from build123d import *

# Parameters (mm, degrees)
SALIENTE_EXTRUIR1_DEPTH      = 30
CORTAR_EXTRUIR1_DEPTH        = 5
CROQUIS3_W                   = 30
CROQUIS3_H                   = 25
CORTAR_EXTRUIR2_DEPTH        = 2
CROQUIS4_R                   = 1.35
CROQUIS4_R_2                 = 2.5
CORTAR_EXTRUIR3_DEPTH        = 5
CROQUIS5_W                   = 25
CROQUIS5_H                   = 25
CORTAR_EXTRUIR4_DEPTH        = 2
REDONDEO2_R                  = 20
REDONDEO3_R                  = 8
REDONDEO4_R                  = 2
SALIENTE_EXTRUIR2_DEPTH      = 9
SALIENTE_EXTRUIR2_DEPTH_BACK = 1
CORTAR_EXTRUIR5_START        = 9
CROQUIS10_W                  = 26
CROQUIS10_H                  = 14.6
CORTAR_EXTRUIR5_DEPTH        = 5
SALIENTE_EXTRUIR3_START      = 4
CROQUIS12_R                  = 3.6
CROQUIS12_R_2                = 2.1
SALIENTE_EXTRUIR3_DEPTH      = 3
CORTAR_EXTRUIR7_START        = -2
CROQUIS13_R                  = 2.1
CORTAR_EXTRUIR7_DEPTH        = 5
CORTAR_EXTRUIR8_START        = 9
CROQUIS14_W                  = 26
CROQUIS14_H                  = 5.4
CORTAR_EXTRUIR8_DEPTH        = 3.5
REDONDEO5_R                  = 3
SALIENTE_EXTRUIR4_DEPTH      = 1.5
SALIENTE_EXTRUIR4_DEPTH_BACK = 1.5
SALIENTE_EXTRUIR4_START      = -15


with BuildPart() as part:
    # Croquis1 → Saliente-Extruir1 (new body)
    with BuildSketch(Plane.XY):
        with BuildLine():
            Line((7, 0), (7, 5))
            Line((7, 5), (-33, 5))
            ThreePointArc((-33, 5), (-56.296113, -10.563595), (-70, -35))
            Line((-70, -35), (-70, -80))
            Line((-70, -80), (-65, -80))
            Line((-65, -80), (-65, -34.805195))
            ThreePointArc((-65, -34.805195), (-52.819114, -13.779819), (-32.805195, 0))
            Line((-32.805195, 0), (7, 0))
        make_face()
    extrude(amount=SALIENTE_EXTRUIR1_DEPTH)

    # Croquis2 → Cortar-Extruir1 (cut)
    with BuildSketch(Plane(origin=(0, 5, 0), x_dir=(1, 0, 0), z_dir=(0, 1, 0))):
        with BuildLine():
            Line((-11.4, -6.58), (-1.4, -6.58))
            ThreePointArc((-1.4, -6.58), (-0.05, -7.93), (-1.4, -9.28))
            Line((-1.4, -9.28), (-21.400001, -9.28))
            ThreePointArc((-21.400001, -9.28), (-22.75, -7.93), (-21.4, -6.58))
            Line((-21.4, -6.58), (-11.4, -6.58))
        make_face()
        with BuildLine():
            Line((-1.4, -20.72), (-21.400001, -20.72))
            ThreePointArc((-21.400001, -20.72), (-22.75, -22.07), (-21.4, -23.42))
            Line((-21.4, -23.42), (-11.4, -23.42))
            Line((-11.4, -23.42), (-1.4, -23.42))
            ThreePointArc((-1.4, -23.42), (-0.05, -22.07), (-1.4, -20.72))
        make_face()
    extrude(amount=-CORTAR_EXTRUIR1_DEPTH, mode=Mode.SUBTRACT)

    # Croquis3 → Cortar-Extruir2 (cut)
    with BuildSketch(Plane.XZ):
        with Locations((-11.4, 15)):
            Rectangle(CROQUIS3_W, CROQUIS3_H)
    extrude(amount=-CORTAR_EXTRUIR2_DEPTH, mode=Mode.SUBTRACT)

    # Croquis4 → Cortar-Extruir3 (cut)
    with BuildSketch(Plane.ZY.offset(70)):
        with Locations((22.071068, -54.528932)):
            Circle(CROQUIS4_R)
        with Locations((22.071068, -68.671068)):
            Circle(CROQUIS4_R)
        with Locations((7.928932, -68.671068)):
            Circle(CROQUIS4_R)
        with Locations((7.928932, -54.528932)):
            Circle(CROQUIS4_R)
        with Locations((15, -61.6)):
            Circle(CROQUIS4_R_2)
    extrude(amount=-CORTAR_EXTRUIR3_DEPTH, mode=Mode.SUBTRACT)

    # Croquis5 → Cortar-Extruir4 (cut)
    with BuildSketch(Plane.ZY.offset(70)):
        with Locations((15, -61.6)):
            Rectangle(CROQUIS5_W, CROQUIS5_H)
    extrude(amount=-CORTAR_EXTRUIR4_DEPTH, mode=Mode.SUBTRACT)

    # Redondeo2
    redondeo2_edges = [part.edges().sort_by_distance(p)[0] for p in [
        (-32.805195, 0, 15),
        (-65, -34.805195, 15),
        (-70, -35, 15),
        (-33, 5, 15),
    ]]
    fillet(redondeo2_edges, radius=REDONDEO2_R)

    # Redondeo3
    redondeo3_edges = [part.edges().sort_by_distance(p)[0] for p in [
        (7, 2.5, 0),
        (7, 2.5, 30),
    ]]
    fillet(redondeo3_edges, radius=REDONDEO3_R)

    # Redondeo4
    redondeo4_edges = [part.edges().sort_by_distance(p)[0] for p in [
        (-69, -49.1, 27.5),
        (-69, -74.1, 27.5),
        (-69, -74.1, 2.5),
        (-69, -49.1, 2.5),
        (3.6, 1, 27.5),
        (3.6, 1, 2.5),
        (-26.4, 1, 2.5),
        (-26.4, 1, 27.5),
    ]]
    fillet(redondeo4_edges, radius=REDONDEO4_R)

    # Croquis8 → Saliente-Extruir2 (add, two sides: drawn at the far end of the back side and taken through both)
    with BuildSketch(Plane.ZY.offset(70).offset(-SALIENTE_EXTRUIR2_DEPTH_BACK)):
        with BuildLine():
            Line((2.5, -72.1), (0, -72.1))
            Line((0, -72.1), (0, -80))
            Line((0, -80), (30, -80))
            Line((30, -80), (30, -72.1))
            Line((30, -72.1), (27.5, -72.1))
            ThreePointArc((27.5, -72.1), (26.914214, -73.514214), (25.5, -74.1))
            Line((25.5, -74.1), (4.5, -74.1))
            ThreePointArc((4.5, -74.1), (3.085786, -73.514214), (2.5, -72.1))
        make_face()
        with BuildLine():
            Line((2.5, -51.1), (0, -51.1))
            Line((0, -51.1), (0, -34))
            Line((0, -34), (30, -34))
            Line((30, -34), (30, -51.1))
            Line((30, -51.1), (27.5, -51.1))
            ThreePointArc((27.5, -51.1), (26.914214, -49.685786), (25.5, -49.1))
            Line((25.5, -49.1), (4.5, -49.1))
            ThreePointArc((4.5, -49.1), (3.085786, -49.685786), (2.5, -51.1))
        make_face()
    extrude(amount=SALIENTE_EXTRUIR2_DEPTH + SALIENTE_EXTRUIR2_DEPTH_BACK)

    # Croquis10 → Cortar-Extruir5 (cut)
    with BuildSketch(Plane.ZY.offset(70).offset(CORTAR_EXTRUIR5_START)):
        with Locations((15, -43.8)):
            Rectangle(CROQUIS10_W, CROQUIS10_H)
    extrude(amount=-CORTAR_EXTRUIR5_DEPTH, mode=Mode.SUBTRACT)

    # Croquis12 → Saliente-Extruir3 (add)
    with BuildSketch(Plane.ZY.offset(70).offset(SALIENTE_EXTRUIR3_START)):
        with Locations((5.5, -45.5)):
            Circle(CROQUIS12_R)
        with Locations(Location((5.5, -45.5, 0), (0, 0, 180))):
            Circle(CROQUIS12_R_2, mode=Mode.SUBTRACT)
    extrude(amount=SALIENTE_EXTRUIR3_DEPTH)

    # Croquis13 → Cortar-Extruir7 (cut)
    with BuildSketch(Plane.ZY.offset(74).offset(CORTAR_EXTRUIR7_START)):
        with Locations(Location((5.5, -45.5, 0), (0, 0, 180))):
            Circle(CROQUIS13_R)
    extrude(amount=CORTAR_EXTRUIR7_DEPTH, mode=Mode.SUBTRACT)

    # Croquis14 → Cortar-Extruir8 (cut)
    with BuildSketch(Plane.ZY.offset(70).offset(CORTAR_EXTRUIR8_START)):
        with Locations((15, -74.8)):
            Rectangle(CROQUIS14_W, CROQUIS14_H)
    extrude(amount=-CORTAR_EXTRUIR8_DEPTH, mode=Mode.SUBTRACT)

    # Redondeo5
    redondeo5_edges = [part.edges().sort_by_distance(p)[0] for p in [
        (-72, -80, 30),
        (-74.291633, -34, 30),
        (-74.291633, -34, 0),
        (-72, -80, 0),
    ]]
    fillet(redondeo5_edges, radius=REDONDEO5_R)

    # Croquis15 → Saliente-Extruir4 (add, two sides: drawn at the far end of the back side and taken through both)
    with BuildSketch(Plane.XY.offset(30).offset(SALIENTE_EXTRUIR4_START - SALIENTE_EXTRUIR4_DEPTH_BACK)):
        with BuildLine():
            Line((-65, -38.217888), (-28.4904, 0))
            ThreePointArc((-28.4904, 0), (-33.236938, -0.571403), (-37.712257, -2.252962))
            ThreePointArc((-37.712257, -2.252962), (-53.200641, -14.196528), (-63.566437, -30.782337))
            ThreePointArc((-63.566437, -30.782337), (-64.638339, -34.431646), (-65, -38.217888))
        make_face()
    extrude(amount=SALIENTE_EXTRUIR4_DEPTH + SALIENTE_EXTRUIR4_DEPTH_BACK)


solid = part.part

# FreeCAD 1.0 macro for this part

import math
import FreeCAD as App
import Part
import Sketcher

V = App.Vector


def edges_at(feature, points):
    """Names of the edges that pass closest to the given points."""
    edges = feature.Shape.Edges
    near = lambda p: min(range(len(edges)), key=lambda i: edges[i].distToShape(Part.Vertex(*p))[0])
    return sorted({f"Edge{near(p) + 1}" for p in points})


def add_polygon(sketch, points):
    """Adds a closed chain of lines whose ends are joined by coincident constraints."""
    first, n = sketch.GeometryCount, len(points)
    for a, b in zip(points, points[1:] + points[:1]):
        sketch.addGeometry(Part.LineSegment(App.Vector(*a, 0), App.Vector(*b, 0)), False)
    for i in range(n):
        sketch.addConstraint(Sketcher.Constraint("Coincident", first + i, 2, first + (i + 1) % n, 1))

doc = App.newDocument("Part")
body = doc.addObject("PartDesign::Body", "Body")

sketch1 = body.newObject("Sketcher::SketchObject", "Sketch")
sketch1.AttachmentSupport = (doc.getObject("XY_Plane"), [""])
sketch1.MapMode = "FlatFace"
sketch1.addGeometry(Part.LineSegment(V(7, 0, 0), V(7, 5, 0)), False)
sketch1.addGeometry(Part.LineSegment(V(7, 5, 0), V(-33, 5, 0)), False)
sketch1.addGeometry(Part.ArcOfCircle(Part.Circle(V(-12.197623, -51.354698, 0), V(0, 0, 1), 60.071548), math.radians(110.260766), math.radians(164.201584)), False)
sketch1.addGeometry(Part.LineSegment(V(-70, -35, 0), V(-70, -80, 0)), False)
sketch1.addGeometry(Part.LineSegment(V(-70, -80, 0), V(-65, -80, 0)), False)
sketch1.addGeometry(Part.LineSegment(V(-65, -80, 0), V(-65, -34.805195, 0)), False)
sketch1.addGeometry(Part.ArcOfCircle(Part.Circle(V(-12.197624, -51.354697, 0), V(0, 0, 1), 55.335133), math.radians(111.864564), math.radians(162.597786)), False)
sketch1.addGeometry(Part.LineSegment(V(-32.805195, 0, 0), V(7, 0, 0)), False)
sketch1.addConstraint(Sketcher.Constraint("Coincident", 0, 2, 1, 1))
sketch1.addConstraint(Sketcher.Constraint("Coincident", 1, 2, 2, 1))
sketch1.addConstraint(Sketcher.Constraint("Coincident", 2, 2, 3, 1))
sketch1.addConstraint(Sketcher.Constraint("Coincident", 3, 2, 4, 1))
sketch1.addConstraint(Sketcher.Constraint("Coincident", 4, 2, 5, 1))
sketch1.addConstraint(Sketcher.Constraint("Coincident", 5, 2, 6, 2))
sketch1.addConstraint(Sketcher.Constraint("Coincident", 6, 1, 7, 1))
sketch1.addConstraint(Sketcher.Constraint("Coincident", 7, 2, 0, 1))
sketch1.addConstraint(Sketcher.Constraint("Vertical", 0))
sketch1.addConstraint(Sketcher.Constraint("Horizontal", 1))
sketch1.addConstraint(Sketcher.Constraint("Vertical", 3))
sketch1.addConstraint(Sketcher.Constraint("Horizontal", 4))
sketch1.addConstraint(Sketcher.Constraint("Vertical", 5))
sketch1.addConstraint(Sketcher.Constraint("Horizontal", 7))
sketch1.addConstraint(Sketcher.Constraint("Coincident", 6, 3, 2, 3))
sketch1.addConstraint(Sketcher.Constraint("PointOnObject", 6, 1, -1))
sketch1.addConstraint(Sketcher.Constraint("Equal", 4, 0))
sketch1.addConstraint(Sketcher.Constraint("DistanceX", 1, 2, 1, 1, 40.0))
sketch1.addConstraint(Sketcher.Constraint("DistanceX", 4, 1, 4, 2, 5.0))
sketch1.addConstraint(Sketcher.Constraint("DistanceY", 3, 2, 3, 1, 45.0))
sketch1.addConstraint(Sketcher.Constraint("DistanceX", -1, 1, 0, 2, 7.0))
sketch1.addConstraint(Sketcher.Constraint("DistanceX", 2, 2, -1, 1, 70.0))
sketch1.addConstraint(Sketcher.Constraint("DistanceY", 2, 2, -1, 1, 35.0))
sketch1.addConstraint(Sketcher.Constraint("Radius", 2, 60.071548))
sketch1.addConstraint(Sketcher.Constraint("Radius", 6, 55.335133))
pad1 = body.newObject("PartDesign::Pad", "Pad")
pad1.Profile = sketch1
pad1.Length = 30

sketch2 = body.newObject("Sketcher::SketchObject", "Sketch001")
sketch2.AttachmentSupport = (doc.getObject("XZ_Plane"), [""])
sketch2.MapMode = "FlatFace"
sketch2.AttachmentOffset = App.Placement(V(0, 0, -5), App.Rotation())
sketch2.addGeometry(Part.ArcOfCircle(Part.Circle(V(-1.4, 7.93, 0), V(0, 0, 1), 1.35), math.radians(-90), math.radians(90)), False)
sketch2.addGeometry(Part.LineSegment(V(-1.4, 6.58, 0), V(-21.4, 6.58, 0)), False)
sketch2.addGeometry(Part.ArcOfCircle(Part.Circle(V(-21.4, 7.93, 0), V(0, 0, 1), 1.35), math.radians(90.000042), math.radians(270)), False)
sketch2.addGeometry(Part.LineSegment(V(-21.400001, 9.28, 0), V(-1.4, 9.28, 0)), False)
sketch2.addGeometry(Part.LineSegment(V(-1.4, 20.72, 0), V(-21.400001, 20.72, 0)), False)
sketch2.addGeometry(Part.ArcOfCircle(Part.Circle(V(-21.4, 22.07, 0), V(0, 0, 1), 1.35), math.radians(90), math.radians(269.999958)), False)
sketch2.addGeometry(Part.LineSegment(V(-21.4, 23.42, 0), V(-1.4, 23.42, 0)), False)
sketch2.addGeometry(Part.ArcOfCircle(Part.Circle(V(-1.4, 22.07, 0), V(0, 0, 1), 1.35), math.radians(-90), math.radians(90)), False)
sketch2.addConstraint(Sketcher.Constraint("Tangent", 0, 1, 1, 1))
sketch2.addConstraint(Sketcher.Constraint("Tangent", 1, 2, 2, 2))
sketch2.addConstraint(Sketcher.Constraint("Tangent", 2, 1, 3, 1))
sketch2.addConstraint(Sketcher.Constraint("Tangent", 3, 2, 0, 2))
sketch2.addConstraint(Sketcher.Constraint("Tangent", 4, 2, 5, 2))
sketch2.addConstraint(Sketcher.Constraint("Tangent", 5, 1, 6, 1))
sketch2.addConstraint(Sketcher.Constraint("Tangent", 6, 2, 7, 2))
sketch2.addConstraint(Sketcher.Constraint("Tangent", 7, 1, 4, 1))
sketch2.addConstraint(Sketcher.Constraint("Horizontal", 1))
sketch2.addConstraint(Sketcher.Constraint("Horizontal", 3))
sketch2.addConstraint(Sketcher.Constraint("Horizontal", 4))
sketch2.addConstraint(Sketcher.Constraint("Horizontal", 6))
sketch2.addConstraint(Sketcher.Constraint("Equal", 2, 5))
sketch2.addConstraint(Sketcher.Constraint("Vertical", 2, 3, 5, 3))
sketch2.addConstraint(Sketcher.Constraint("Vertical", 0, 3, 7, 3))
sketch2.addConstraint(Sketcher.Constraint("DistanceX", 1, 2, 1, 1, 20.0))
sketch2.addConstraint(Sketcher.Constraint("Radius", 0, 1.35))
sketch2.addConstraint(Sketcher.Constraint("DistanceX", 0, 3, -1, 1, 1.4))
sketch2.addConstraint(Sketcher.Constraint("DistanceY", -1, 1, 0, 3, 7.93))
sketch2.addConstraint(Sketcher.Constraint("DistanceY", -1, 1, 5, 3, 22.07))
pocket1 = body.newObject("PartDesign::Pocket", "Pocket")
pocket1.Profile = sketch2
pocket1.Length = 5
pocket1.Reversed = True

sketch3 = body.newObject("Sketcher::SketchObject", "Sketch002")
sketch3.AttachmentSupport = (doc.getObject("XZ_Plane"), [""])
sketch3.MapMode = "FlatFace"
add_polygon(sketch3, [(-26.4, 27.5), (-26.4, 2.5), (3.6, 2.5), (3.6, 27.5)])
sketch3.addConstraint(Sketcher.Constraint("Vertical", 0))
sketch3.addConstraint(Sketcher.Constraint("Horizontal", 1))
sketch3.addConstraint(Sketcher.Constraint("Vertical", 2))
sketch3.addConstraint(Sketcher.Constraint("Horizontal", 3))
sketch3.addConstraint(Sketcher.Constraint("DistanceX", 1, 1, 1, 2, 30.0))
sketch3.addConstraint(Sketcher.Constraint("DistanceY", 0, 2, 0, 1, 25.0))
sketch3.addConstraint(Sketcher.Constraint("DistanceX", 0, 2, -1, 1, 26.4))
sketch3.addConstraint(Sketcher.Constraint("DistanceY", -1, 1, 0, 2, 2.5))
pocket2 = body.newObject("PartDesign::Pocket", "Pocket001")
pocket2.Profile = sketch3
pocket2.Length = 2

sketch4 = body.newObject("Sketcher::SketchObject", "Sketch003")
sketch4.AttachmentSupport = (doc.getObject("YZ_Plane"), [""])
sketch4.MapMode = "FlatFace"
sketch4.AttachmentOffset = App.Placement(V(0, 0, -70), App.Rotation())
sketch4.addGeometry(Part.Circle(V(-54.528932, 22.071068, 0), V(0, 0, 1), 1.35), False)
sketch4.addGeometry(Part.Circle(V(-68.671068, 22.071068, 0), V(0, 0, 1), 1.35), False)
sketch4.addGeometry(Part.Circle(V(-68.671068, 7.928932, 0), V(0, 0, 1), 1.35), False)
sketch4.addGeometry(Part.Circle(V(-54.528932, 7.928932, 0), V(0, 0, 1), 1.35), False)
sketch4.addGeometry(Part.Circle(V(-61.6, 15, 0), V(0, 0, 1), 2.5), False)
sketch4.addConstraint(Sketcher.Constraint("Equal", 0, 1))
sketch4.addConstraint(Sketcher.Constraint("Equal", 1, 2))
sketch4.addConstraint(Sketcher.Constraint("Equal", 2, 3))
sketch4.addConstraint(Sketcher.Constraint("Horizontal", 0, 3, 1, 3))
sketch4.addConstraint(Sketcher.Constraint("Horizontal", 2, 3, 3, 3))
sketch4.addConstraint(Sketcher.Constraint("Vertical", 1, 3, 2, 3))
sketch4.addConstraint(Sketcher.Constraint("Vertical", 0, 3, 3, 3))
sketch4.addConstraint(Sketcher.Constraint("Diameter", 4, 5.0))
sketch4.addConstraint(Sketcher.Constraint("Diameter", 0, 2.7))
sketch4.addConstraint(Sketcher.Constraint("DistanceY", -1, 1, 4, 3, 15.0))
sketch4.addConstraint(Sketcher.Constraint("DistanceX", 4, 3, -1, 1, 61.6))
sketch4.addConstraint(Sketcher.Constraint("DistanceX", 0, 3, -1, 1, 54.528932))
sketch4.addConstraint(Sketcher.Constraint("DistanceY", -1, 1, 0, 3, 22.071068))
sketch4.addConstraint(Sketcher.Constraint("DistanceX", 1, 3, -1, 1, 68.671068))
sketch4.addConstraint(Sketcher.Constraint("DistanceY", -1, 1, 2, 3, 7.928932))
pocket3 = body.newObject("PartDesign::Pocket", "Pocket002")
pocket3.Profile = sketch4
pocket3.Length = 5
pocket3.Reversed = True

sketch5 = body.newObject("Sketcher::SketchObject", "Sketch004")
sketch5.AttachmentSupport = (doc.getObject("YZ_Plane"), [""])
sketch5.MapMode = "FlatFace"
sketch5.AttachmentOffset = App.Placement(V(0, 0, -70), App.Rotation())
add_polygon(sketch5, [(-49.1, 2.5), (-74.1, 2.5), (-74.1, 27.5), (-49.1, 27.5)])
sketch5.addConstraint(Sketcher.Constraint("Horizontal", 0))
sketch5.addConstraint(Sketcher.Constraint("Vertical", 1))
sketch5.addConstraint(Sketcher.Constraint("Horizontal", 2))
sketch5.addConstraint(Sketcher.Constraint("Vertical", 3))
sketch5.addConstraint(Sketcher.Constraint("Equal", 2, 1))
sketch5.addConstraint(Sketcher.Constraint("DistanceX", 0, 2, 0, 1, 25.0))
sketch5.addConstraint(Sketcher.Constraint("DistanceX", 0, 2, -1, 1, 74.1))
sketch5.addConstraint(Sketcher.Constraint("DistanceY", -1, 1, 0, 2, 2.5))
pocket4 = body.newObject("PartDesign::Pocket", "Pocket003")
pocket4.Profile = sketch5
pocket4.Length = 2
pocket4.Reversed = True
doc.recompute()

fillet = body.newObject("PartDesign::Fillet", "Fillet")
fillet.Base = (pocket4, edges_at(pocket4, [
    (-32.805, 0, 15),
    (-65, -34.805, 15),
    (-70, -35, 15),
    (-33, 5, 15),
]))
fillet.Radius = 20
doc.recompute()

fillet2 = body.newObject("PartDesign::Fillet", "Fillet001")
fillet2.Base = (fillet, edges_at(fillet, [(7, 2.5, 0), (7, 2.5, 30)]))
fillet2.Radius = 8
doc.recompute()

fillet3 = body.newObject("PartDesign::Fillet", "Fillet002")
fillet3.Base = (fillet2, edges_at(fillet2, [
    (-69, -49.1, 27.5),
    (-69, -74.1, 27.5),
    (-69, -74.1, 2.5),
    (-69, -49.1, 2.5),
    (3.6, 1, 27.5),
    (3.6, 1, 2.5),
    (-26.4, 1, 2.5),
    (-26.4, 1, 27.5),
]))
fillet3.Radius = 2

sketch6 = body.newObject("Sketcher::SketchObject", "Sketch005")
sketch6.AttachmentSupport = (doc.getObject("YZ_Plane"), [""])
sketch6.MapMode = "FlatFace"
sketch6.AttachmentOffset = App.Placement(V(0, 0, -70), App.Rotation())
sketch6.addGeometry(Part.LineSegment(V(-72.1, 2.5, 0), V(-72.1, 0, 0)), False)
sketch6.addGeometry(Part.LineSegment(V(-72.1, 0, 0), V(-80, 0, 0)), False)
sketch6.addGeometry(Part.LineSegment(V(-80, 0, 0), V(-80, 30, 0)), False)
sketch6.addGeometry(Part.LineSegment(V(-80, 30, 0), V(-72.1, 30, 0)), False)
sketch6.addGeometry(Part.LineSegment(V(-72.1, 30, 0), V(-72.1, 27.5, 0)), False)
sketch6.addGeometry(Part.ArcOfCircle(Part.Circle(V(-72.100001, 25.500001, 0), V(0, 0, 1), 1.999999), math.radians(89.999957), math.radians(180.000043)), False)
sketch6.addGeometry(Part.LineSegment(V(-74.1, 25.5, 0), V(-74.1, 4.5, 0)), False)
sketch6.addGeometry(Part.ArcOfCircle(Part.Circle(V(-72.100001, 4.499999, 0), V(0, 0, 1), 1.999999), math.radians(179.999957), math.radians(270.000043)), False)
sketch6.addGeometry(Part.LineSegment(V(-51.1, 0, 0), V(-51.1, 2.5, 0)), False)
sketch6.addGeometry(Part.ArcOfCircle(Part.Circle(V(-51.099999, 4.499999, 0), V(0, 0, 1), 1.999999), math.radians(-90.000043), math.radians(0.000043)), False)
sketch6.addGeometry(Part.LineSegment(V(-49.1, 4.5, 0), V(-49.1, 25.5, 0)), False)
sketch6.addGeometry(Part.ArcOfCircle(Part.Circle(V(-51.099999, 25.500001, 0), V(0, 0, 1), 1.999999), math.radians(-0.000043), math.radians(90.000043)), False)
sketch6.addGeometry(Part.LineSegment(V(-51.1, 27.5, 0), V(-51.1, 30, 0)), False)
sketch6.addGeometry(Part.LineSegment(V(-51.1, 30, 0), V(-34, 30, 0)), False)
sketch6.addGeometry(Part.LineSegment(V(-34, 30, 0), V(-34, 0, 0)), False)
sketch6.addGeometry(Part.LineSegment(V(-34, 0, 0), V(-51.1, 0, 0)), False)
sketch6.addConstraint(Sketcher.Constraint("Coincident", 0, 2, 1, 1))
sketch6.addConstraint(Sketcher.Constraint("Coincident", 1, 2, 2, 1))
sketch6.addConstraint(Sketcher.Constraint("Coincident", 2, 2, 3, 1))
sketch6.addConstraint(Sketcher.Constraint("Coincident", 3, 2, 4, 1))
sketch6.addConstraint(Sketcher.Constraint("Coincident", 4, 2, 5, 1))
sketch6.addConstraint(Sketcher.Constraint("Tangent", 5, 2, 6, 1))
sketch6.addConstraint(Sketcher.Constraint("Tangent", 6, 2, 7, 1))
sketch6.addConstraint(Sketcher.Constraint("Coincident", 7, 2, 0, 1))
sketch6.addConstraint(Sketcher.Constraint("Coincident", 8, 2, 9, 1))
sketch6.addConstraint(Sketcher.Constraint("Tangent", 9, 2, 10, 1))
sketch6.addConstraint(Sketcher.Constraint("Tangent", 10, 2, 11, 1))
sketch6.addConstraint(Sketcher.Constraint("Coincident", 11, 2, 12, 1))
sketch6.addConstraint(Sketcher.Constraint("Coincident", 12, 2, 13, 1))
sketch6.addConstraint(Sketcher.Constraint("Coincident", 13, 2, 14, 1))
sketch6.addConstraint(Sketcher.Constraint("Coincident", 14, 2, 15, 1))
sketch6.addConstraint(Sketcher.Constraint("Coincident", 15, 2, 8, 1))
sketch6.addConstraint(Sketcher.Constraint("Vertical", 0))
sketch6.addConstraint(Sketcher.Constraint("Horizontal", 1))
sketch6.addConstraint(Sketcher.Constraint("Vertical", 2))
sketch6.addConstraint(Sketcher.Constraint("Horizontal", 3))
sketch6.addConstraint(Sketcher.Constraint("Vertical", 4))
sketch6.addConstraint(Sketcher.Constraint("Vertical", 6))
sketch6.addConstraint(Sketcher.Constraint("Vertical", 8))
sketch6.addConstraint(Sketcher.Constraint("Vertical", 10))
sketch6.addConstraint(Sketcher.Constraint("Vertical", 12))
sketch6.addConstraint(Sketcher.Constraint("Horizontal", 13))
sketch6.addConstraint(Sketcher.Constraint("Vertical", 14))
sketch6.addConstraint(Sketcher.Constraint("Horizontal", 15))
sketch6.addConstraint(Sketcher.Constraint("Equal", 5, 7))
sketch6.addConstraint(Sketcher.Constraint("Equal", 7, 9))
sketch6.addConstraint(Sketcher.Constraint("Equal", 9, 11))
sketch6.addConstraint(Sketcher.Constraint("PointOnObject", 0, 2, -1))
sketch6.addConstraint(Sketcher.Constraint("PointOnObject", 14, 2, -1))
sketch6.addConstraint(Sketcher.Constraint("Horizontal", 7, 3, 9, 3))
sketch6.addConstraint(Sketcher.Constraint("Horizontal", 5, 3, 11, 3))
sketch6.addConstraint(Sketcher.Constraint("Horizontal", 3, 2, 12, 2))
sketch6.addConstraint(Sketcher.Constraint("Vertical", 7, 3, 0, 2))
sketch6.addConstraint(Sketcher.Constraint("Vertical", 0, 2, 3, 2))
sketch6.addConstraint(Sketcher.Constraint("Vertical", 11, 3, 8, 2))
sketch6.addConstraint(Sketcher.Constraint("Vertical", 8, 2, 11, 2))
sketch6.addConstraint(Sketcher.Constraint("Equal", 0, 4))
sketch6.addConstraint(Sketcher.Constraint("Radius", 5, 1.999999))
sketch6.addConstraint(Sketcher.Constraint("DistanceY", 2, 1, 2, 2, 30.0))
sketch6.addConstraint(Sketcher.Constraint("DistanceY", 6, 2, 6, 1, 21.0))
sketch6.addConstraint(Sketcher.Constraint("DistanceX", 1, 2, 1, 1, 7.9))
sketch6.addConstraint(Sketcher.Constraint("DistanceX", 13, 1, 13, 2, 17.1))
sketch6.addConstraint(Sketcher.Constraint("DistanceX", 1, 2, -1, 1, 80.0))
sketch6.addConstraint(Sketcher.Constraint("DistanceX", 13, 2, -1, 1, 34.0))
pad2 = body.newObject("PartDesign::Pad", "Pad001")
pad2.Profile = sketch6
pad2.Type = "TwoLengths"
pad2.Length = 9
pad2.Length2 = 1
pad2.Reversed = True

sketch7 = body.newObject("Sketcher::SketchObject", "Sketch006")
sketch7.AttachmentSupport = (doc.getObject("YZ_Plane"), [""])
sketch7.MapMode = "FlatFace"
sketch7.AttachmentOffset = App.Placement(V(0, 0, -79), App.Rotation())
add_polygon(sketch7, [(-36.5, 2), (-51.1, 2), (-51.1, 28), (-36.5, 28)])
sketch7.addConstraint(Sketcher.Constraint("Horizontal", 0))
sketch7.addConstraint(Sketcher.Constraint("Vertical", 1))
sketch7.addConstraint(Sketcher.Constraint("Horizontal", 2))
sketch7.addConstraint(Sketcher.Constraint("Vertical", 3))
sketch7.addConstraint(Sketcher.Constraint("DistanceY", 1, 1, 1, 2, 26.0))
sketch7.addConstraint(Sketcher.Constraint("DistanceX", 0, 2, 0, 1, 14.6))
sketch7.addConstraint(Sketcher.Constraint("DistanceY", -1, 1, 0, 2, 2.0))
sketch7.addConstraint(Sketcher.Constraint("DistanceX", 0, 2, -1, 1, 51.1))
pocket5 = body.newObject("PartDesign::Pocket", "Pocket004")
pocket5.Profile = sketch7
pocket5.Length = 5
pocket5.Reversed = True

sketch8 = body.newObject("Sketcher::SketchObject", "Sketch007")
sketch8.AttachmentSupport = (doc.getObject("YZ_Plane"), [""])
sketch8.MapMode = "FlatFace"
sketch8.AttachmentOffset = App.Placement(V(0, 0, -74), App.Rotation())
sketch8.addGeometry(Part.Circle(V(-45.5, 5.5, 0), V(0, 0, 1), 3.6), False)
sketch8.addGeometry(Part.Circle(V(-45.5, 5.5, 0), V(0, 0, 1), 2.1), False)
sketch8.addConstraint(Sketcher.Constraint("Coincident", 1, 3, 0, 3))
sketch8.addConstraint(Sketcher.Constraint("Diameter", 0, 7.2))
sketch8.addConstraint(Sketcher.Constraint("Diameter", 1, 4.2))
sketch8.addConstraint(Sketcher.Constraint("DistanceX", 0, 3, -1, 1, 45.5))
sketch8.addConstraint(Sketcher.Constraint("DistanceY", -1, 1, 0, 3, 5.5))
pad3 = body.newObject("PartDesign::Pad", "Pad002")
pad3.Profile = sketch8
pad3.Length = 3
pad3.Reversed = True

sketch9 = body.newObject("Sketcher::SketchObject", "Sketch008")
sketch9.AttachmentSupport = (doc.getObject("YZ_Plane"), [""])
sketch9.MapMode = "FlatFace"
sketch9.AttachmentOffset = App.Placement(V(0, 0, -72), App.Rotation())
sketch9.addGeometry(Part.Circle(V(-45.5, 5.5, 0), V(0, 0, 1), 2.1), False)
sketch9.addConstraint(Sketcher.Constraint("Diameter", 0, 4.2))
sketch9.addConstraint(Sketcher.Constraint("DistanceX", 0, 3, -1, 1, 45.5))
sketch9.addConstraint(Sketcher.Constraint("DistanceY", -1, 1, 0, 3, 5.5))
pocket6 = body.newObject("PartDesign::Pocket", "Pocket005")
pocket6.Profile = sketch9
pocket6.Length = 5

sketch10 = body.newObject("Sketcher::SketchObject", "Sketch009")
sketch10.AttachmentSupport = (doc.getObject("YZ_Plane"), [""])
sketch10.MapMode = "FlatFace"
sketch10.AttachmentOffset = App.Placement(V(0, 0, -79), App.Rotation())
add_polygon(sketch10, [(-72.1, 2), (-77.5, 2), (-77.5, 28), (-72.1, 28)])
sketch10.addConstraint(Sketcher.Constraint("Horizontal", 0))
sketch10.addConstraint(Sketcher.Constraint("Vertical", 1))
sketch10.addConstraint(Sketcher.Constraint("Horizontal", 2))
sketch10.addConstraint(Sketcher.Constraint("Vertical", 3))
sketch10.addConstraint(Sketcher.Constraint("DistanceY", 1, 1, 1, 2, 26.0))
sketch10.addConstraint(Sketcher.Constraint("DistanceX", 0, 2, 0, 1, 5.4))
sketch10.addConstraint(Sketcher.Constraint("DistanceY", -1, 1, 0, 2, 2.0))
sketch10.addConstraint(Sketcher.Constraint("DistanceX", 0, 2, -1, 1, 77.5))
pocket7 = body.newObject("PartDesign::Pocket", "Pocket006")
pocket7.Profile = sketch10
pocket7.Length = 3.5
pocket7.Reversed = True
doc.recompute()

fillet4 = body.newObject("PartDesign::Fillet", "Fillet003")
fillet4.Base = (pocket7, edges_at(pocket7, [
    (-72, -80, 30),
    (-74.292, -34, 30),
    (-74.292, -34, 0),
    (-72, -80, 0),
]))
fillet4.Radius = 3

sketch11 = body.newObject("Sketcher::SketchObject", "Sketch010")
sketch11.AttachmentSupport = (doc.getObject("XY_Plane"), [""])
sketch11.MapMode = "FlatFace"
sketch11.AttachmentOffset = App.Placement(V(0, 0, 15), App.Rotation())
sketch11.addGeometry(Part.LineSegment(V(-65, -38.217888, 0), V(-28.4904, 0, 0)), False)
sketch11.addGeometry(Part.ArcOfCircle(Part.Circle(V(-28.490401, -19.999998, 0), V(0, 0, 1), 19.999998), math.radians(89.999998), math.radians(117.45765)), False)
sketch11.addGeometry(Part.ArcOfCircle(Part.Circle(V(-12.197626, -51.354696, 0), V(0, 0, 1), 55.335131), math.radians(117.457647), math.radians(158.174715)), False)
sketch11.addGeometry(Part.ArcOfCircle(Part.Circle(V(-44.999982, -38.217891, 0), V(0, 0, 1), 20.000018), math.radians(158.174725), math.radians(179.99999)), False)
sketch11.addConstraint(Sketcher.Constraint("Coincident", 0, 2, 1, 1))
sketch11.addConstraint(Sketcher.Constraint("Tangent", 1, 2, 2, 1))
sketch11.addConstraint(Sketcher.Constraint("Tangent", 2, 2, 3, 1))
sketch11.addConstraint(Sketcher.Constraint("Coincident", 3, 2, 0, 1))
sketch11.addConstraint(Sketcher.Constraint("PointOnObject", 0, 2, -1))
sketch11.addConstraint(Sketcher.Constraint("Vertical", 1, 3, 0, 2))
sketch11.addConstraint(Sketcher.Constraint("Radius", 1, 19.999998))
sketch11.addConstraint(Sketcher.Constraint("DistanceX", 3, 2, -1, 1, 65.0))
sketch11.addConstraint(Sketcher.Constraint("Radius", 2, 55.335131))
sketch11.addConstraint(Sketcher.Constraint("Radius", 3, 20.000018))
sketch11.addConstraint(Sketcher.Constraint("DistanceX", 1, 3, -1, 1, 28.490401))
sketch11.addConstraint(Sketcher.Constraint("Distance", 0, 52.854119))
sketch11.addConstraint(Sketcher.Constraint("DistanceY", 3, 3, -1, 1, 38.217891))
pad4 = body.newObject("PartDesign::Pad", "Pad003")
pad4.Profile = sketch11
pad4.Type = "TwoLengths"
pad4.Length = 1.5
pad4.Length2 = 1.5

doc.recompute()
